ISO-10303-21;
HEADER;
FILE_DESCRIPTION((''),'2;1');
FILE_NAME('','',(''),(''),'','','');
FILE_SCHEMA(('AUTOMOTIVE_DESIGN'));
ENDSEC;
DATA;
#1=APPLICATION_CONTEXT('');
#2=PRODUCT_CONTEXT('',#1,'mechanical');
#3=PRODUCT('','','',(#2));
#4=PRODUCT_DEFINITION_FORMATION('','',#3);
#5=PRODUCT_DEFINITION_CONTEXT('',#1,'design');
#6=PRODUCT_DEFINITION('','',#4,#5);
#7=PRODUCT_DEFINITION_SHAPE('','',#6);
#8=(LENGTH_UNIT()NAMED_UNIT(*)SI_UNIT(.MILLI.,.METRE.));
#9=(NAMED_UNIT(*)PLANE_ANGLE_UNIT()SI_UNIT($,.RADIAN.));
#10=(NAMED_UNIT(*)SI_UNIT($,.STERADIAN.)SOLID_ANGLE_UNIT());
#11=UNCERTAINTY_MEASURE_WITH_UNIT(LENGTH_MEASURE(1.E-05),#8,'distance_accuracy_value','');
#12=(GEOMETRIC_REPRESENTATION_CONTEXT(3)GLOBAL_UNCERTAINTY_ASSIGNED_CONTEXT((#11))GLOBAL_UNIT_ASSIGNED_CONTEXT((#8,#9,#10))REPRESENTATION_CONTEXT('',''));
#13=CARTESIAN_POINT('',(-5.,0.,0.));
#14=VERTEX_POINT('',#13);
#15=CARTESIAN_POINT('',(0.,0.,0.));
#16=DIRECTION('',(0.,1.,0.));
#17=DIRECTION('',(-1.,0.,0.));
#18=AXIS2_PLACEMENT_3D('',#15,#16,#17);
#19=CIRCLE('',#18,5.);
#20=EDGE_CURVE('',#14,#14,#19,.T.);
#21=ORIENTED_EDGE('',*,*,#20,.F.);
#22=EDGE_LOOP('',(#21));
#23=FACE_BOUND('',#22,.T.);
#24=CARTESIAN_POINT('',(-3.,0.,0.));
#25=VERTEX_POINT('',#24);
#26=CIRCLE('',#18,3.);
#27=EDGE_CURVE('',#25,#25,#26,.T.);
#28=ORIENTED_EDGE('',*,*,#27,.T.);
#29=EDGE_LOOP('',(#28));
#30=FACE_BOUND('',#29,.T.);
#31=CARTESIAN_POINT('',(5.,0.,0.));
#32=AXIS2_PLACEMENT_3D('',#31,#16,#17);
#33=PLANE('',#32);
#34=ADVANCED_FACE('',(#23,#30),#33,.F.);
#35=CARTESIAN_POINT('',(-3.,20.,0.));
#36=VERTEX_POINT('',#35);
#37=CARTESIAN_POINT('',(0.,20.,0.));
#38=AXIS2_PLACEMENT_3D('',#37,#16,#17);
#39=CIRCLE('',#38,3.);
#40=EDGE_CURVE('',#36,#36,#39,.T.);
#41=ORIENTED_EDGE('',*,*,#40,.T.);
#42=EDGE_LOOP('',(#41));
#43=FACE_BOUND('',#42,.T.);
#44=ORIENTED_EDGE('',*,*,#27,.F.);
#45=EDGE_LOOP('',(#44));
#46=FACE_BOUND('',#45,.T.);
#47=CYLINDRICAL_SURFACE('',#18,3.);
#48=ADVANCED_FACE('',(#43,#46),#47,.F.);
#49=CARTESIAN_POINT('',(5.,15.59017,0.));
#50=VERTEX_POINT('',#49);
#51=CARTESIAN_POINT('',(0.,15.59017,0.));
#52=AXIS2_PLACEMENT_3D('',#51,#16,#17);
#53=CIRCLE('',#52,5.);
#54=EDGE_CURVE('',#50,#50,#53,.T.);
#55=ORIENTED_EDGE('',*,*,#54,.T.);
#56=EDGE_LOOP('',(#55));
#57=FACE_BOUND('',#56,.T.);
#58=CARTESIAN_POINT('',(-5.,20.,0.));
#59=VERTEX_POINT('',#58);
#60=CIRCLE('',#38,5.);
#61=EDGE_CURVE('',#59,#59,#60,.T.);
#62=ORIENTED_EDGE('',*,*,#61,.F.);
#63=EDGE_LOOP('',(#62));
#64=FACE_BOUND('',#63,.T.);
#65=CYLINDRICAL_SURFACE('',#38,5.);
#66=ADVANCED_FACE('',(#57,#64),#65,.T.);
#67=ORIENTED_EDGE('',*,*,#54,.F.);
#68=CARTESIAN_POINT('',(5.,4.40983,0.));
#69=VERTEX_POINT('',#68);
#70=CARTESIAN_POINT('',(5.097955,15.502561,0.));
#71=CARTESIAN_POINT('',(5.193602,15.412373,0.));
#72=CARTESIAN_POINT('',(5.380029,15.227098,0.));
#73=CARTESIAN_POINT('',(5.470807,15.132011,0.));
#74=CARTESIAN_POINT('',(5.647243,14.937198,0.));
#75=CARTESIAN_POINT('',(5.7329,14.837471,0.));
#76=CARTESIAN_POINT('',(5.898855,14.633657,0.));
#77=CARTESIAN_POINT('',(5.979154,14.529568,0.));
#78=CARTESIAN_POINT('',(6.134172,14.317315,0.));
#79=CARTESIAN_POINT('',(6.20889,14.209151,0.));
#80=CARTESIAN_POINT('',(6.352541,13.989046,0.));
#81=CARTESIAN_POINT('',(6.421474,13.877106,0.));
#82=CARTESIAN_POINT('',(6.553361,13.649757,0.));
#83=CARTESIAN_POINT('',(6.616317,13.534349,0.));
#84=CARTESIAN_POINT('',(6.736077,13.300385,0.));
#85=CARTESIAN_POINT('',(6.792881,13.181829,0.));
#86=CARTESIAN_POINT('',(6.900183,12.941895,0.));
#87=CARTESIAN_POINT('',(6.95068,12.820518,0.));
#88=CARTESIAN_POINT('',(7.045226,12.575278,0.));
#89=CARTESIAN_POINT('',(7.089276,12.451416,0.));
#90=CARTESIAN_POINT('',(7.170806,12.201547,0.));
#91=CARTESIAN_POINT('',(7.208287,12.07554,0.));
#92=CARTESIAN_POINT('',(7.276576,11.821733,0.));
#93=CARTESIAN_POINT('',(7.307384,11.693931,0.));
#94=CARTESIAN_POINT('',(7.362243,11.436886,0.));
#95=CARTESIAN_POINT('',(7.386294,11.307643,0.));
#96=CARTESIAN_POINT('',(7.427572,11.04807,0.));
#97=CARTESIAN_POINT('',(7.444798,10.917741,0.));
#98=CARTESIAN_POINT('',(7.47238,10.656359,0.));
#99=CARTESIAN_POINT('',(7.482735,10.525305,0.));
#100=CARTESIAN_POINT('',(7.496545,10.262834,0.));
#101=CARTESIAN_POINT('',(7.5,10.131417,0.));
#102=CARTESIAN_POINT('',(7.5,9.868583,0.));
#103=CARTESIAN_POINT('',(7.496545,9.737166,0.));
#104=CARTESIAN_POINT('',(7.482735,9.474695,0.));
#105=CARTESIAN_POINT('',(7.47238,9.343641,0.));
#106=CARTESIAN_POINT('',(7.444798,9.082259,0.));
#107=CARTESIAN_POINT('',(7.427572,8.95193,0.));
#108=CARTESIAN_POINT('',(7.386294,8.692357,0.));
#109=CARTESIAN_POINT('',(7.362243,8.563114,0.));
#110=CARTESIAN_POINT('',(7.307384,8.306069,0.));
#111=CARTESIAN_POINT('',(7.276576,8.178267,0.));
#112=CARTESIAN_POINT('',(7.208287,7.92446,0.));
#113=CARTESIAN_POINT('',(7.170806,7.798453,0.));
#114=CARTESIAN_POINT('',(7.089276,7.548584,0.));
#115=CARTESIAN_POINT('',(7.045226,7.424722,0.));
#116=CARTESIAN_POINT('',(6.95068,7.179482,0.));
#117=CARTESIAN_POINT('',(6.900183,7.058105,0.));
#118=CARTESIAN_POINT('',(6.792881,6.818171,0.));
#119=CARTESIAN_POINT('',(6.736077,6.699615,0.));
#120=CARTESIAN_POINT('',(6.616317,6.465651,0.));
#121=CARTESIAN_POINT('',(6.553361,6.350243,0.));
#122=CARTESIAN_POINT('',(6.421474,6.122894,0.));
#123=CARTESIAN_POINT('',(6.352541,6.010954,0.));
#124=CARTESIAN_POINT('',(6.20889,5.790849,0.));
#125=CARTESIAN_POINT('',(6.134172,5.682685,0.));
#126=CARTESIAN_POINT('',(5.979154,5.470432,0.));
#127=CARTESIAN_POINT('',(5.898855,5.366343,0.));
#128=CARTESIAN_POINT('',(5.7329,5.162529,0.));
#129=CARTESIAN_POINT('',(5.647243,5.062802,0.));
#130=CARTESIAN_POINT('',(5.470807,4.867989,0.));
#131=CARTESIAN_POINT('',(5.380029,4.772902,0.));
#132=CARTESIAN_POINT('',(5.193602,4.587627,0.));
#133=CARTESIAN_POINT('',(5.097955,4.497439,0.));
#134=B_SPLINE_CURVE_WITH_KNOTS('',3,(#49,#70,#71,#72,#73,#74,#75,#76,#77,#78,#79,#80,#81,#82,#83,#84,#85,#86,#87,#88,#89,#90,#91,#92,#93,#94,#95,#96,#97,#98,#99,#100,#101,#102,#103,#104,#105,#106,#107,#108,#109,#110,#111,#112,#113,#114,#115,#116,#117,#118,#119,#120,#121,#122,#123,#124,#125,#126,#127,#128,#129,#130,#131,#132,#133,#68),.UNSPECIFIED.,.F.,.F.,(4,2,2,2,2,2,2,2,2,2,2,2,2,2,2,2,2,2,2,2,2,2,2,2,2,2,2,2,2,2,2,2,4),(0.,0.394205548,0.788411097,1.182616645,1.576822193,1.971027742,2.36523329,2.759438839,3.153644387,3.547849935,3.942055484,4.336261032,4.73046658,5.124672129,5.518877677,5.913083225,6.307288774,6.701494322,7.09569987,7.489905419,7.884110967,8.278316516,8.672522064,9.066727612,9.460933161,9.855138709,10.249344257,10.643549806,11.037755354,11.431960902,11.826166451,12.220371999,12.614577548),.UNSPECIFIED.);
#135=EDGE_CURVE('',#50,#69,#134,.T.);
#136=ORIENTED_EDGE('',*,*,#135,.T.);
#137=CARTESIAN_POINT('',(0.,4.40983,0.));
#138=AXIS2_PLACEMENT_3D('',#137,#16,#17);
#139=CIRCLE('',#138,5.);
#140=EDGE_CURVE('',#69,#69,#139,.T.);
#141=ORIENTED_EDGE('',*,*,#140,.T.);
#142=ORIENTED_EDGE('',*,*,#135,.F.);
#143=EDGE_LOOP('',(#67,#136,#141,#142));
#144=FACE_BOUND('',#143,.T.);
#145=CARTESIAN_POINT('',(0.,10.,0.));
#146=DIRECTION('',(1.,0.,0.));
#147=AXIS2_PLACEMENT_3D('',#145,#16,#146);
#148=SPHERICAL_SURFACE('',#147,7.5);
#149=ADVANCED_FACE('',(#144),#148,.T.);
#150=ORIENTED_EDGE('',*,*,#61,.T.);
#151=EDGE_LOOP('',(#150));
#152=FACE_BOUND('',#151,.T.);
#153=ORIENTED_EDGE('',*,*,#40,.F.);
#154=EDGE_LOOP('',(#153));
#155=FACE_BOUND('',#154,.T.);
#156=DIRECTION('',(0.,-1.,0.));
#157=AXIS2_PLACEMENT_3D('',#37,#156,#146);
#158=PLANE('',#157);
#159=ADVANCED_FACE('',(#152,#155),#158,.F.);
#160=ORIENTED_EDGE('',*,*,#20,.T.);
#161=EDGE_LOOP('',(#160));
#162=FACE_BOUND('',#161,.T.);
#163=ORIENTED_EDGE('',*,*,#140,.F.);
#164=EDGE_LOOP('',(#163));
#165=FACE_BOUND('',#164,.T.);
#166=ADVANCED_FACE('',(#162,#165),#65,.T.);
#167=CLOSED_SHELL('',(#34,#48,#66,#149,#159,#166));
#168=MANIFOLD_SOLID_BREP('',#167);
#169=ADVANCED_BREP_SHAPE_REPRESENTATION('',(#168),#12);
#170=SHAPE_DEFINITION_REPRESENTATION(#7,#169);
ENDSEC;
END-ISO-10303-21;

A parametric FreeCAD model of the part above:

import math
import FreeCAD as App
import Part
import Sketcher
Q = App.Units.Quantity

doc = App.newDocument("Part")
params = doc.addObject("Spreadsheet::Sheet", "Params")
for row, (alias, value) in enumerate([
    ("sketch1_radius", "7.5 mm"),
    ("sketch1_width", "5 mm"),
    ("sketch1_height", "20 mm"),
    ("revolution_angle", "360 deg"),
    ("sketch2_diameter", "6 mm"),
], start=1):
    params.set(f"A{row}", alias)
    params.set(f"B{row}", "=" + value)
    params.setAlias(f"B{row}", alias)

body = doc.addObject("PartDesign::Body", "Body")

sketch1 = body.newObject("Sketcher::SketchObject", "Sketch")
sketch1.AttachmentSupport = (doc.getObject("XY_Plane"), [""])
sketch1.MapMode = "FlatFace"
sketch1.addGeometry(Part.LineSegment(App.Vector(5, 20, 0), App.Vector(0, 20, 0)), False)
sketch1.addGeometry(Part.LineSegment(App.Vector(0, 20, 0), App.Vector(0, 0, 0)), False)
sketch1.addGeometry(Part.LineSegment(App.Vector(0, 0, 0), App.Vector(5, 0, 0)), False)
sketch1.addGeometry(Part.LineSegment(App.Vector(5, 0, 0), App.Vector(5, 4.4, 0)), False)
sketch1.addGeometry(Part.ArcOfCircle(Part.Circle(App.Vector(0, 10, 0), App.Vector(0, 0, 1), 7.5), math.radians(-48), math.radians(48)), False)
sketch1.addGeometry(Part.LineSegment(App.Vector(5, 15.6, 0), App.Vector(5, 20, 0)), False)
sketch1.addConstraint(Sketcher.Constraint("Coincident", 0, 2, 1, 1))
sketch1.addConstraint(Sketcher.Constraint("Coincident", 1, 2, 2, 1))
sketch1.addConstraint(Sketcher.Constraint("Coincident", 2, 2, 3, 1))
sketch1.addConstraint(Sketcher.Constraint("Coincident", 3, 2, 4, 1))
sketch1.addConstraint(Sketcher.Constraint("Coincident", 4, 2, 5, 1))
sketch1.addConstraint(Sketcher.Constraint("Coincident", 5, 2, 0, 1))
sketch1.addConstraint(Sketcher.Constraint("Horizontal", 0))
sketch1.addConstraint(Sketcher.Constraint("Vertical", 1))
sketch1.addConstraint(Sketcher.Constraint("Horizontal", 2))
sketch1.addConstraint(Sketcher.Constraint("Vertical", 3))
sketch1.addConstraint(Sketcher.Constraint("Vertical", 5))
sketch1.addConstraint(Sketcher.Constraint("Coincident", 1, 2, -1, 1))
sketch1.addConstraint(Sketcher.Constraint("PointOnObject", 4, 3, -2))
sketch1.addConstraint(Sketcher.Constraint("Vertical", 3, 2, 4, 2))
sketch1.addConstraint(Sketcher.Constraint("Equal", 3, 5))
sketch1.addConstraint(Sketcher.Constraint("Radius", 4, Q("7.5 mm")))
sketch1.addConstraint(Sketcher.Constraint("DistanceX", 0, 2, 0, 1, Q("5 mm")))
sketch1.addConstraint(Sketcher.Constraint("DistanceY", 1, 2, 1, 1, Q("20 mm")))
sketch1.setExpression("Constraints[15]", "Params.sketch1_radius")
sketch1.setExpression("Constraints[16]", "Params.sketch1_width")
sketch1.setExpression("Constraints[17]", "Params.sketch1_height")
revolution = body.newObject("PartDesign::Revolution", "Revolution")
revolution.Profile = sketch1
revolution.ReferenceAxis = (sketch1, ["V_Axis"])
revolution.setExpression("Angle", "Params.revolution_angle")

sketch2 = body.newObject("Sketcher::SketchObject", "Sketch001")
sketch2.AttachmentSupport = (doc.getObject("XZ_Plane"), [""])
sketch2.MapMode = "FlatFace"
sketch2.AttachmentOffset = App.Placement(App.Vector(0, 0, -20), App.Rotation())
sketch2.addGeometry(Part.Circle(App.Vector(0, 0, 0), App.Vector(0, 0, 1), 3), False)
sketch2.addConstraint(Sketcher.Constraint("Coincident", 0, 3, -1, 1))
sketch2.addConstraint(Sketcher.Constraint("Diameter", 0, Q("6 mm")))
sketch2.setExpression("Constraints[1]", "Params.sketch2_diameter")
pocket1 = body.newObject("PartDesign::Pocket", "Pocket")
pocket1.Profile = sketch2
pocket1.Type = "ThroughAll"
pocket1.Reversed = True

doc.recompute()
